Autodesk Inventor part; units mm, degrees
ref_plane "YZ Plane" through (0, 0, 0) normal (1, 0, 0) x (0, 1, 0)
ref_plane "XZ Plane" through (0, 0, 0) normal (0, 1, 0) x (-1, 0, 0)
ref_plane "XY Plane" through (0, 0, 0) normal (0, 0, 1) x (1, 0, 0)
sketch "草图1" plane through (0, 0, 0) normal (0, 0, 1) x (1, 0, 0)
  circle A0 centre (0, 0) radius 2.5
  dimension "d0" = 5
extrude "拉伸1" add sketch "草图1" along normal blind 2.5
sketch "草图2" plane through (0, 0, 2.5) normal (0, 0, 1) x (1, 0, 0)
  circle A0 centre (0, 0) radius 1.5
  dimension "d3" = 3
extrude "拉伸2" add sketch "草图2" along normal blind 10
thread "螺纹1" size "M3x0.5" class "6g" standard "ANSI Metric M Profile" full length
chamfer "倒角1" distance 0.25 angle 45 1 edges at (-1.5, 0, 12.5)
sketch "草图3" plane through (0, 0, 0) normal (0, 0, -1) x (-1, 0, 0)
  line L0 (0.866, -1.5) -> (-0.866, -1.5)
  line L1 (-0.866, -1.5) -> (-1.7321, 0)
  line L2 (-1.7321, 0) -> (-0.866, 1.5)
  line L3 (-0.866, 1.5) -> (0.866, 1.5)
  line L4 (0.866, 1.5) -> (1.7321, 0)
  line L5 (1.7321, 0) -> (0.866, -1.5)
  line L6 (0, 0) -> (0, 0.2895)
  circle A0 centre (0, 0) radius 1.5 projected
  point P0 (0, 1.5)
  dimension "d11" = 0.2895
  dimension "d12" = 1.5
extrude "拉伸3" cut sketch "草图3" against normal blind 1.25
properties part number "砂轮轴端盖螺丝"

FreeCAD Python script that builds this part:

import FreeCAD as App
import Part
import Sketcher
from FreeCAD import Vector
Q = App.Units.Quantity


def edges_at(feature, points):
    """Names of the edges that pass closest to the given points."""
    edges = feature.Shape.Edges
    near = lambda p: min(range(len(edges)), key=lambda i: edges[i].distToShape(Part.Vertex(*p))[0])
    return sorted({f"Edge{near(p) + 1}" for p in points})

doc = App.newDocument("Part")
body = doc.addObject("PartDesign::Body", "Body")

# Sketch on XY plane
sketch1 = body.newObject("Sketcher::SketchObject", "Sketch")
sketch1.AttachmentSupport = (doc.getObject("XY_Plane"), [""])
sketch1.MapMode = "FlatFace"
sketch1.addGeometry(Part.Circle(Vector(0, 0, 0), Vector(0, 0, 1), 2.5), False)
sketch1.addConstraint([
    Sketcher.Constraint("Coincident", 0, 3, -1, 1),
    Sketcher.Constraint("Diameter", 0, Q("5 mm")),
])
pad1 = body.newObject("PartDesign::Pad", "Pad")
pad1.Profile = sketch1
pad1.Length = 2.5

# Sketch on XY plane
sketch2 = body.newObject("Sketcher::SketchObject", "Sketch001")
sketch2.AttachmentSupport = (doc.getObject("XY_Plane"), [""])
sketch2.MapMode = "FlatFace"
sketch2.AttachmentOffset = App.Placement(Vector(0, 0, 2.5), App.Rotation())
sketch2.addGeometry(Part.Circle(Vector(0, 0, 0), Vector(0, 0, 1), 1.5), False)
sketch2.addConstraint([
    Sketcher.Constraint("Coincident", 0, 3, -1, 1),
    Sketcher.Constraint("Diameter", 0, Q("3 mm")),
])
pad2 = body.newObject("PartDesign::Pad", "Pad001")
pad2.Profile = sketch2
pad2.Length = 10
doc.recompute()

chamfer = body.newObject("PartDesign::Chamfer", "Chamfer")
chamfer.Base = (pad2, edges_at(pad2, [(-1.5, 0, 12.5)]))
chamfer.Size = 0.25

# Sketch on XY plane
sketch3 = body.newObject("Sketcher::SketchObject", "Sketch002")
sketch3.AttachmentSupport = (doc.getObject("XY_Plane"), [""])
sketch3.MapMode = "FlatFace"
sketch3.addGeometry([
    Part.LineSegment(Vector(-0.866, -1.5, 0), Vector(-1.7321, 0, 0)),  # 0
    Part.LineSegment(Vector(-1.7321, 0, 0), Vector(-0.866, 1.5, 0)),  # 1
    Part.LineSegment(Vector(-0.866, 1.5, 0), Vector(0.866, 1.5, 0)),  # 2
    Part.LineSegment(Vector(0.866, 1.5, 0), Vector(1.7321, 0, 0)),  # 3
    Part.LineSegment(Vector(1.7321, 0, 0), Vector(0.866, -1.5, 0)),  # 4
    Part.LineSegment(Vector(0.866, -1.5, 0), Vector(-0.866, -1.5, 0)),  # 5
], False)
sketch3.addConstraint([
    Sketcher.Constraint("Coincident", 0, 2, 1, 1),
    Sketcher.Constraint("Coincident", 1, 2, 2, 1),
    Sketcher.Constraint("Coincident", 2, 2, 3, 1),
    Sketcher.Constraint("Coincident", 3, 2, 4, 1),
    Sketcher.Constraint("Coincident", 4, 2, 5, 1),
    Sketcher.Constraint("Coincident", 5, 2, 0, 1),
    Sketcher.Constraint("Horizontal", 2),
    Sketcher.Constraint("Horizontal", 5),
    Sketcher.Constraint("Symmetric", 0, 2, 3, 2, -1, 1),
    Sketcher.Constraint("Symmetric", 1, 2, 4, 2, -1, 1),
    Sketcher.Constraint("PointOnObject", 0, 2, -1),
    Sketcher.Constraint("Parallel", 0, 3),
    Sketcher.Constraint("Vertical", 2, 2, 4, 2),
    Sketcher.Constraint("DistanceY", -1, 1, 1, 2, Q("1.5 mm")),
    Sketcher.Constraint("DistanceX", 2, 1, 2, 2, Q("1.732 mm")),
    Sketcher.Constraint("Distance", 0, Q("1.732 mm")),
])
pocket1 = body.newObject("PartDesign::Pocket", "Pocket")
pocket1.Profile = sketch3
pocket1.Length = 1.25
pocket1.Reversed = True

doc.recompute()
